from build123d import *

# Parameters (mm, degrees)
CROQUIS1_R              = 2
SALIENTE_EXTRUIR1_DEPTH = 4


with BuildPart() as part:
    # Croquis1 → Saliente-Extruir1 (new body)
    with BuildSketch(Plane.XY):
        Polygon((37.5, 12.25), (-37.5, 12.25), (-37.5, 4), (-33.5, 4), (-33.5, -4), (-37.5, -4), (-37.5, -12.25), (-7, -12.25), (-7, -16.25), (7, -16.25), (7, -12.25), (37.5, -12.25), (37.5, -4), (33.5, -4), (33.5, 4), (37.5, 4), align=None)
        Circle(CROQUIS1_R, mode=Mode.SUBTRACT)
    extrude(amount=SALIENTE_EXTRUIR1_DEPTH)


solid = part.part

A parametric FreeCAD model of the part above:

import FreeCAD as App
import Part
import Sketcher
from FreeCAD import Vector


def add_polygon(sketch, points):
    """Adds a closed chain of lines whose ends are joined by coincident constraints."""
    first, n = sketch.GeometryCount, len(points)
    for a, b in zip(points, points[1:] + points[:1]):
        sketch.addGeometry(Part.LineSegment(App.Vector(*a, 0), App.Vector(*b, 0)), False)
    for i in range(n):
        sketch.addConstraint(Sketcher.Constraint("Coincident", first + i, 2, first + (i + 1) % n, 1))

doc = App.newDocument("Part")
body = doc.addObject("PartDesign::Body", "Body")

# Sketch on XY plane
sketch1 = body.newObject("Sketcher::SketchObject", "Sketch")
sketch1.AttachmentSupport = (doc.getObject("XY_Plane"), [""])
sketch1.MapMode = "FlatFace"
add_polygon(sketch1, [(37.5, 12.2), (-37.5, 12.2), (-37.5, 4), (-33.5, 4), (-33.5, -4), (-37.5, -4), (-37.5, -12.2), (-7, -12.2), (-7, -16.2), (7, -16.2), (7, -12.2), (37.5, -12.2), (37.5, -4), (33.5, -4), (33.5, 4), (37.5, 4)])  # lines 0-15
sketch1.addGeometry(Part.Circle(Vector(0, 0, 0), Vector(0, 0, 1), 2), False)  # 16
sketch1.addConstraint(Sketcher.Constraint("Horizontal", 0))
sketch1.addConstraint(Sketcher.Constraint("Vertical", 1))
sketch1.addConstraint(Sketcher.Constraint("Horizontal", 2))
sketch1.addConstraint(Sketcher.Constraint("Vertical", 3))
sketch1.addConstraint(Sketcher.Constraint("Horizontal", 4))
sketch1.addConstraint(Sketcher.Constraint("Vertical", 5))
sketch1.addConstraint(Sketcher.Constraint("Horizontal", 6))
sketch1.addConstraint(Sketcher.Constraint("Vertical", 7))
sketch1.addConstraint(Sketcher.Constraint("Horizontal", 8))
sketch1.addConstraint(Sketcher.Constraint("Vertical", 9))
sketch1.addConstraint(Sketcher.Constraint("Horizontal", 10))
sketch1.addConstraint(Sketcher.Constraint("Vertical", 11))
sketch1.addConstraint(Sketcher.Constraint("Horizontal", 12))
sketch1.addConstraint(Sketcher.Constraint("Vertical", 13))
sketch1.addConstraint(Sketcher.Constraint("Horizontal", 14))
sketch1.addConstraint(Sketcher.Constraint("Vertical", 15))
sketch1.addConstraint(Sketcher.Constraint("Coincident", 16, 3, -1, 1))
sketch1.addConstraint(Sketcher.Constraint("Symmetric", 0, 2, 10, 2, -1, 1))
sketch1.addConstraint(Sketcher.Constraint("Symmetric", 2, 2, 12, 2, -1, 1))
sketch1.addConstraint(Sketcher.Constraint("Symmetric", 4, 2, 14, 2, -1, 1))
sketch1.addConstraint(Sketcher.Constraint("Symmetric", 6, 2, 9, 2, -2))
sketch1.addConstraint(Sketcher.Constraint("Symmetric", 4, 2, 11, 2, -2))
sketch1.addConstraint(Sketcher.Constraint("Equal", 14, 7))
sketch1.addConstraint(Sketcher.Constraint("Diameter", 16, 4.0))
sketch1.addConstraint(Sketcher.Constraint("DistanceX", 0, 2, 0, 1, 75.0))
sketch1.addConstraint(Sketcher.Constraint("DistanceX", 2, 1, 2, 2, 4.0))
sketch1.addConstraint(Sketcher.Constraint("DistanceX", 8, 1, 8, 2, 14.0))
sketch1.addConstraint(Sketcher.Constraint("DistanceY", 3, 2, 3, 1, 8.0))
sketch1.addConstraint(Sketcher.Constraint("DistanceY", 1, 2, 1, 1, 8.25))
pad1 = body.newObject("PartDesign::Pad", "Pad")
pad1.Profile = sketch1
pad1.Length = 4

doc.recompute()
